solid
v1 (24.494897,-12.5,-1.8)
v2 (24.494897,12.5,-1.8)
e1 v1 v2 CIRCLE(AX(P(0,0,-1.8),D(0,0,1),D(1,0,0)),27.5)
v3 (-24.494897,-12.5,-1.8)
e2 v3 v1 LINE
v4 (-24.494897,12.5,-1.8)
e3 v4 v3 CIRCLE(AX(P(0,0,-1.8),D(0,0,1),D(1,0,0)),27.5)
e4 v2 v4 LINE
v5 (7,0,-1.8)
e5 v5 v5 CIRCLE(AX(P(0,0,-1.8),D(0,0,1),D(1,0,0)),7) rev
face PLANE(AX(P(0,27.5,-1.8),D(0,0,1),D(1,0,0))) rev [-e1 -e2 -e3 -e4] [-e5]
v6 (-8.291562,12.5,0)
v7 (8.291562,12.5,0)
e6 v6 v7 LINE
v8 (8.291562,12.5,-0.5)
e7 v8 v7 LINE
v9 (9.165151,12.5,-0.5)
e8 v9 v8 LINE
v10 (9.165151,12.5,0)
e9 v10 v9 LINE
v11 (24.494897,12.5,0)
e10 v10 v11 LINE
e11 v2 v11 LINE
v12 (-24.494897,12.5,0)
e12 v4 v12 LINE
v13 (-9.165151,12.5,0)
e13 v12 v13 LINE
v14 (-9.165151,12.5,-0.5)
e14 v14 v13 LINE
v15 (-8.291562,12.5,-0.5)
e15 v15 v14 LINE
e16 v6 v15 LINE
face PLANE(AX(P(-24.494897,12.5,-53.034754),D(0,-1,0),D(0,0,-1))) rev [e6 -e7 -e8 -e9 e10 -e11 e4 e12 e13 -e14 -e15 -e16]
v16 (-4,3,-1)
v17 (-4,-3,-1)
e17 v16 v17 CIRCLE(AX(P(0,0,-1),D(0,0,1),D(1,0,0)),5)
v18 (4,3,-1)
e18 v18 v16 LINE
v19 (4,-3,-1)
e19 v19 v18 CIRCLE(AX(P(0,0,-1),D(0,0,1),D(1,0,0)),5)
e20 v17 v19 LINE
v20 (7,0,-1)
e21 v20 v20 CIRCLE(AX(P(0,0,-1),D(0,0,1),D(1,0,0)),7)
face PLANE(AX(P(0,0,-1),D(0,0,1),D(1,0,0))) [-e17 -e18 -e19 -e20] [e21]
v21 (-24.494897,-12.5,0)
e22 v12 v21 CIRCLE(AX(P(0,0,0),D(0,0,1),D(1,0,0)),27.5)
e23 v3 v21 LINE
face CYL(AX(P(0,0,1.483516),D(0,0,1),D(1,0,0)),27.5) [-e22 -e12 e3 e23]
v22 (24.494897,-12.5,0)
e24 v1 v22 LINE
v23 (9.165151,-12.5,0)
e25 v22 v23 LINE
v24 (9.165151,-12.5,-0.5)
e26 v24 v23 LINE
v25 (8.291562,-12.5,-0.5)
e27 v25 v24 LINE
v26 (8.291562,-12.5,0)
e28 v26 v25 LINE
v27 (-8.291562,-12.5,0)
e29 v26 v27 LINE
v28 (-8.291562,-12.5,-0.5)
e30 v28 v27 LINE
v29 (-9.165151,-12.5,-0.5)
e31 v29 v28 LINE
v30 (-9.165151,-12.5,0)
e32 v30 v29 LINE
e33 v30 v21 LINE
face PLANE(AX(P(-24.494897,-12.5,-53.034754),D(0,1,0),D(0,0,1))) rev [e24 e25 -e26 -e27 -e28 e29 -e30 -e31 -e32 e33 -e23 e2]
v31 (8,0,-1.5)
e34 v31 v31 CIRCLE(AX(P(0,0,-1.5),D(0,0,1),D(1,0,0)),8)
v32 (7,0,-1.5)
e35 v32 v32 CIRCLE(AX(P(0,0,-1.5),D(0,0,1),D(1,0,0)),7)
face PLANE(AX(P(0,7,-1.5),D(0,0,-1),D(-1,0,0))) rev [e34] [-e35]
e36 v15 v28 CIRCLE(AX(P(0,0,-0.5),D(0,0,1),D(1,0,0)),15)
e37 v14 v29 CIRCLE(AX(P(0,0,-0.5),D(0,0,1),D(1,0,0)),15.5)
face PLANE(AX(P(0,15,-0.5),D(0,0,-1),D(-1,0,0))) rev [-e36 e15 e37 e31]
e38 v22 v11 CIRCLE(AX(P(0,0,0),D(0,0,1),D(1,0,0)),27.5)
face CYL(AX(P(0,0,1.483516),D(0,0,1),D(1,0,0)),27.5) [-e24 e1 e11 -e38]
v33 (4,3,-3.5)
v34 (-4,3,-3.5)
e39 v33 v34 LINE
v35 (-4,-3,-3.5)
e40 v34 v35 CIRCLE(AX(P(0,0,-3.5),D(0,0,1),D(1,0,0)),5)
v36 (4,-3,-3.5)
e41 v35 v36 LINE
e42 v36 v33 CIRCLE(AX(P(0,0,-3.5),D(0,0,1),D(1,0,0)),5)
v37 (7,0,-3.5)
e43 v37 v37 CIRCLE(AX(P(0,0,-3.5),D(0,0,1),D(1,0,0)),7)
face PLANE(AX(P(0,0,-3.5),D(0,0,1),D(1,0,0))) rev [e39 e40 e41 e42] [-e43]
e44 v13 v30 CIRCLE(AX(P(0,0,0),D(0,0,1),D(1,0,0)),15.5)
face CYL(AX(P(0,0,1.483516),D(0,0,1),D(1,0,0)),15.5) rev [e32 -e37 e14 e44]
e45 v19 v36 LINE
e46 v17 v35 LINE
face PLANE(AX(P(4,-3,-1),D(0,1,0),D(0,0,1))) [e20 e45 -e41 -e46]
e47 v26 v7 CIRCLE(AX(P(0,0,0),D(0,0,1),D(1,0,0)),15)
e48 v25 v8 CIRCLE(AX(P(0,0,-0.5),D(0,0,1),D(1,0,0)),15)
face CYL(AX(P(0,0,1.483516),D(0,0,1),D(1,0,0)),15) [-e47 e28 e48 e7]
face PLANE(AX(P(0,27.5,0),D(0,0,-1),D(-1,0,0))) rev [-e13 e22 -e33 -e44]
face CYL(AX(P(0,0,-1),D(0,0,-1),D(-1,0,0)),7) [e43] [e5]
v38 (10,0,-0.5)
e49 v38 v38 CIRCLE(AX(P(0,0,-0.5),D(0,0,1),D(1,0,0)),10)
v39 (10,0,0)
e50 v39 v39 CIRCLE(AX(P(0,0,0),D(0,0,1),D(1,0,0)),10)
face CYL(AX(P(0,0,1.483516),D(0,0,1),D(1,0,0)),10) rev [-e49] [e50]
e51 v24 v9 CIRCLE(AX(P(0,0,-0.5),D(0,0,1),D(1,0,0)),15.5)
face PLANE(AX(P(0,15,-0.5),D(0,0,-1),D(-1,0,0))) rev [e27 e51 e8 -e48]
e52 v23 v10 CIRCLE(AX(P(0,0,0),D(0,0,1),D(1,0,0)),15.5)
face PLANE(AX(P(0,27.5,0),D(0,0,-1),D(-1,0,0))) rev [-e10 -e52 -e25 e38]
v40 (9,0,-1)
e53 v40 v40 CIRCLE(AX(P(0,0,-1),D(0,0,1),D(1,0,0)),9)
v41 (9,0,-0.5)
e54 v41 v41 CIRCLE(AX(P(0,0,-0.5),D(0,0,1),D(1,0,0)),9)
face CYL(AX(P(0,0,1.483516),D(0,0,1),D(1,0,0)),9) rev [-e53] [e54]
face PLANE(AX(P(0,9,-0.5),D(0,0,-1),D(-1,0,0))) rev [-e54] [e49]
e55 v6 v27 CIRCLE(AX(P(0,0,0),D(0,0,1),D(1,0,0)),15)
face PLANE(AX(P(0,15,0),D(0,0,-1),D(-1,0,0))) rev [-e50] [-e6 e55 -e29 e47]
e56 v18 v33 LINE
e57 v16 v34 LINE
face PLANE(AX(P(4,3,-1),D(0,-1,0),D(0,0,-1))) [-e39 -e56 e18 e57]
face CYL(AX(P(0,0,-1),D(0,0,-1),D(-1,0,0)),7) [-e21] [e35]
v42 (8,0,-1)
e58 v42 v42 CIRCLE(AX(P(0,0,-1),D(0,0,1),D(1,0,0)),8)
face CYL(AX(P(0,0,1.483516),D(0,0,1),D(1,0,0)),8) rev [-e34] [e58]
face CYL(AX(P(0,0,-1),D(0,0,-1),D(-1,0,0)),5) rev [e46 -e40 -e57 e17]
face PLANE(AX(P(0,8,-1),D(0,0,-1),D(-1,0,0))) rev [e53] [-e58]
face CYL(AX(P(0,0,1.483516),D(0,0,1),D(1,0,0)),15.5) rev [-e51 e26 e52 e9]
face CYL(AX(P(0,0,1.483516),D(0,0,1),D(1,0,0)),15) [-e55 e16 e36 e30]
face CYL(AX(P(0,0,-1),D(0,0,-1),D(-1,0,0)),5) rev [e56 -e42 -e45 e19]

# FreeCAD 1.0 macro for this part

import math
import FreeCAD as App
import Part
import Sketcher
from FreeCAD import Vector

doc = App.newDocument("Part")
params = doc.addObject("Spreadsheet::Sheet", "Params")
for row, (alias, value) in enumerate([
    ("sketch1_width", "1 mm"),
    ("sketch1_width2", "12 mm"),
    ("sketch1_width3", "5 mm"),
    ("sketch1_width4", "20.5 mm"),
    ("sketch1_height", "0.3 mm"),
    ("revolution_angle", "360 deg"),
    ("sketch2_radius", "27.5 mm"),
    ("pocket1_length", "1.8 mm"),
    ("sketch3_diameter", "14 mm"),
    ("sketch3_radius", "5 mm"),
    ("sketch3_width", "8 mm"),
    ("pad1_length", "0.5 mm"),
    ("pad1_length2", "2 mm"),
], start=1):
    params.set(f"A{row}", alias)
    params.set(f"B{row}", "=" + value)
    params.setAlias(f"B{row}", alias)

body = doc.addObject("PartDesign::Body", "Body")

sketch1 = body.newObject("Sketcher::SketchObject", "Sketch")
sketch1.AttachmentSupport = (doc.getObject("YZ_Plane"), [""])
sketch1.MapMode = "FlatFace"
sketch1.addGeometry([
    Part.LineSegment(Vector(8, -1.5, 0), Vector(7, -1.5, 0)),
    Part.LineSegment(Vector(7, -1.5, 0), Vector(7, -1.8, 0)),
    Part.LineSegment(Vector(7, -1.8, 0), Vector(27.5, -1.8, 0)),
    Part.LineSegment(Vector(27.5, -1.8, 0), Vector(27.5, 0, 0)),
    Part.LineSegment(Vector(27.5, 0, 0), Vector(15.5, 0, 0)),
    Part.LineSegment(Vector(15.5, 0, 0), Vector(15.5, -0.5, 0)),
    Part.LineSegment(Vector(15.5, -0.5, 0), Vector(15, -0.5, 0)),
    Part.LineSegment(Vector(15, -0.5, 0), Vector(15, 0, 0)),
    Part.LineSegment(Vector(15, 0, 0), Vector(10, 0, 0)),
    Part.LineSegment(Vector(10, 0, 0), Vector(10, -0.5, 0)),
    Part.LineSegment(Vector(10, -0.5, 0), Vector(9, -0.5, 0)),
    Part.LineSegment(Vector(9, -0.5, 0), Vector(9, -1, 0)),
    Part.LineSegment(Vector(9, -1, 0), Vector(8, -1, 0)),
    Part.LineSegment(Vector(8, -1, 0), Vector(8, -1.5, 0)),
], False)
sketch1.addConstraint([
    Sketcher.Constraint("Coincident", 0, 2, 1, 1),
    Sketcher.Constraint("Coincident", 1, 2, 2, 1),
    Sketcher.Constraint("Coincident", 2, 2, 3, 1),
    Sketcher.Constraint("Coincident", 3, 2, 4, 1),
    Sketcher.Constraint("Coincident", 4, 2, 5, 1),
    Sketcher.Constraint("Coincident", 5, 2, 6, 1),
    Sketcher.Constraint("Coincident", 6, 2, 7, 1),
    Sketcher.Constraint("Coincident", 7, 2, 8, 1),
    Sketcher.Constraint("Coincident", 8, 2, 9, 1),
    Sketcher.Constraint("Coincident", 9, 2, 10, 1),
    Sketcher.Constraint("Coincident", 10, 2, 11, 1),
    Sketcher.Constraint("Coincident", 11, 2, 12, 1),
    Sketcher.Constraint("Coincident", 12, 2, 13, 1),
    Sketcher.Constraint("Coincident", 13, 2, 0, 1),
    Sketcher.Constraint("Horizontal", 0),
    Sketcher.Constraint("Vertical", 1),
    Sketcher.Constraint("Horizontal", 2),
    Sketcher.Constraint("Vertical", 3),
    Sketcher.Constraint("Horizontal", 4),
    Sketcher.Constraint("Vertical", 5),
    Sketcher.Constraint("Horizontal", 6),
    Sketcher.Constraint("Vertical", 7),
    Sketcher.Constraint("Horizontal", 8),
    Sketcher.Constraint("Vertical", 9),
    Sketcher.Constraint("Horizontal", 10),
    Sketcher.Constraint("Vertical", 11),
    Sketcher.Constraint("Horizontal", 12),
    Sketcher.Constraint("Vertical", 13),
    Sketcher.Constraint("PointOnObject", 3, 2, -1),
    Sketcher.Constraint("PointOnObject", 7, 2, -1),
    Sketcher.Constraint("Horizontal", 6, 2, 9, 2),
    Sketcher.Constraint("Equal", 0, 10),
    Sketcher.Constraint("Equal", 10, 12),
    Sketcher.Constraint("Equal", 6, 5),
    Sketcher.Constraint("Equal", 9, 11),
    Sketcher.Constraint("Equal", 11, 13),
    Sketcher.Constraint("DistanceX", 0, 2, 0, 1, 1.0),
    Sketcher.Constraint("DistanceX", 4, 2, 4, 1, 12.0),
    Sketcher.Constraint("DistanceX", 8, 2, 8, 1, 5.0),
    Sketcher.Constraint("DistanceX", 2, 1, 2, 2, 20.5),
    Sketcher.Constraint("DistanceY", 1, 2, 1, 1, 0.3),
    Sketcher.Constraint("DistanceX", -1, 1, 0, 2, 7.0),
])
sketch1.setExpression("Constraints[36]", "Params.sketch1_width")
sketch1.setExpression("Constraints[37]", "Params.sketch1_width2")
sketch1.setExpression("Constraints[38]", "Params.sketch1_width3")
sketch1.setExpression("Constraints[39]", "Params.sketch1_width4")
sketch1.setExpression("Constraints[40]", "Params.sketch1_height")
revolution = body.newObject("PartDesign::Revolution", "Revolution")
revolution.Profile = sketch1
revolution.ReferenceAxis = (sketch1, ["V_Axis"])
revolution.setExpression("Angle", "Params.revolution_angle")

sketch2 = body.newObject("Sketcher::SketchObject", "Sketch001")
sketch2.AttachmentSupport = (doc.getObject("XY_Plane"), [""])
sketch2.MapMode = "FlatFace"
sketch2.AttachmentOffset = App.Placement(Vector(0, 0, -1.8), App.Rotation())
sketch2.addGeometry([
    Part.LineSegment(Vector(-24, 12, 0), Vector(24, 12, 0)),
    Part.ArcOfCircle(Part.Circle(Vector(0, 0, 0), Vector(0, 0, 1), 28), math.radians(27), math.radians(153)),
    Part.LineSegment(Vector(24, -12, 0), Vector(-24, -12, 0)),
    Part.ArcOfCircle(Part.Circle(Vector(0, 0, 0), Vector(0, 0, 1), 28), math.radians(-153), math.radians(-27)),
], False)
sketch2.addConstraint([
    Sketcher.Constraint("Coincident", 0, 1, 1, 2),
    Sketcher.Constraint("Coincident", 1, 1, 0, 2),
    Sketcher.Constraint("Coincident", 2, 1, 3, 2),
    Sketcher.Constraint("Coincident", 3, 1, 2, 2),
    Sketcher.Constraint("Horizontal", 0),
    Sketcher.Constraint("Horizontal", 2),
    Sketcher.Constraint("Coincident", 1, 3, -1, 1),
    Sketcher.Constraint("Coincident", 3, 3, -1, 1),
    Sketcher.Constraint("Equal", 1, 3),
    Sketcher.Constraint("Vertical", 1, 1, 2, 1),
    Sketcher.Constraint("Radius", 1, 27.5),
    Sketcher.Constraint("DistanceY", 2, 1, 1, 1, 25.0),
])
sketch2.setExpression("Constraints[10]", "Params.sketch2_radius")
pocket1 = body.newObject("PartDesign::Pocket", "Pocket")
pocket1.Profile = sketch2
pocket1.setExpression("Length", "Params.pocket1_length")
pocket1.Reversed = True

sketch3 = body.newObject("Sketcher::SketchObject", "Sketch002")
sketch3.AttachmentSupport = (doc.getObject("XY_Plane"), [""])
sketch3.MapMode = "FlatFace"
sketch3.AttachmentOffset = App.Placement(Vector(0, 0, -1.5), App.Rotation())
sketch3.addGeometry([
    Part.Circle(Vector(0, 0, 0), Vector(0, 0, 1), 7),
    Part.LineSegment(Vector(-4, 3, 0), Vector(4, 3, 0)),
    Part.ArcOfCircle(Part.Circle(Vector(0, 0, 0), Vector(0, 0, 1), 5), math.radians(-37), math.radians(37)),
    Part.LineSegment(Vector(4, -3, 0), Vector(-4, -3, 0)),
    Part.ArcOfCircle(Part.Circle(Vector(0, 0, 0), Vector(0, 0, 1), 5), math.radians(143), math.radians(217)),
], False)
sketch3.addConstraint([
    Sketcher.Constraint("Coincident", 1, 2, 2, 2),
    Sketcher.Constraint("Coincident", 2, 1, 3, 1),
    Sketcher.Constraint("Coincident", 3, 2, 4, 2),
    Sketcher.Constraint("Coincident", 4, 1, 1, 1),
    Sketcher.Constraint("Horizontal", 1),
    Sketcher.Constraint("Horizontal", 3),
    Sketcher.Constraint("Coincident", 0, 3, -1, 1),
    Sketcher.Constraint("Coincident", 2, 3, -1, 1),
    Sketcher.Constraint("Coincident", 4, 3, -1, 1),
    Sketcher.Constraint("Equal", 2, 4),
    Sketcher.Constraint("Vertical", 1, 2, 2, 1),
    Sketcher.Constraint("Diameter", 0, 14.0),
    Sketcher.Constraint("Radius", 2, 5.0),
    Sketcher.Constraint("DistanceX", 1, 1, 1, 2, 8.0),
])
sketch3.setExpression("Constraints[11]", "Params.sketch3_diameter")
sketch3.setExpression("Constraints[12]", "Params.sketch3_radius")
sketch3.setExpression("Constraints[13]", "Params.sketch3_width")
pad1 = body.newObject("PartDesign::Pad", "Pad")
pad1.Profile = sketch3
pad1.Type = "TwoLengths"
pad1.setExpression("Length", "Params.pad1_length")
pad1.setExpression("Length2", "Params.pad1_length2")

doc.recompute()
